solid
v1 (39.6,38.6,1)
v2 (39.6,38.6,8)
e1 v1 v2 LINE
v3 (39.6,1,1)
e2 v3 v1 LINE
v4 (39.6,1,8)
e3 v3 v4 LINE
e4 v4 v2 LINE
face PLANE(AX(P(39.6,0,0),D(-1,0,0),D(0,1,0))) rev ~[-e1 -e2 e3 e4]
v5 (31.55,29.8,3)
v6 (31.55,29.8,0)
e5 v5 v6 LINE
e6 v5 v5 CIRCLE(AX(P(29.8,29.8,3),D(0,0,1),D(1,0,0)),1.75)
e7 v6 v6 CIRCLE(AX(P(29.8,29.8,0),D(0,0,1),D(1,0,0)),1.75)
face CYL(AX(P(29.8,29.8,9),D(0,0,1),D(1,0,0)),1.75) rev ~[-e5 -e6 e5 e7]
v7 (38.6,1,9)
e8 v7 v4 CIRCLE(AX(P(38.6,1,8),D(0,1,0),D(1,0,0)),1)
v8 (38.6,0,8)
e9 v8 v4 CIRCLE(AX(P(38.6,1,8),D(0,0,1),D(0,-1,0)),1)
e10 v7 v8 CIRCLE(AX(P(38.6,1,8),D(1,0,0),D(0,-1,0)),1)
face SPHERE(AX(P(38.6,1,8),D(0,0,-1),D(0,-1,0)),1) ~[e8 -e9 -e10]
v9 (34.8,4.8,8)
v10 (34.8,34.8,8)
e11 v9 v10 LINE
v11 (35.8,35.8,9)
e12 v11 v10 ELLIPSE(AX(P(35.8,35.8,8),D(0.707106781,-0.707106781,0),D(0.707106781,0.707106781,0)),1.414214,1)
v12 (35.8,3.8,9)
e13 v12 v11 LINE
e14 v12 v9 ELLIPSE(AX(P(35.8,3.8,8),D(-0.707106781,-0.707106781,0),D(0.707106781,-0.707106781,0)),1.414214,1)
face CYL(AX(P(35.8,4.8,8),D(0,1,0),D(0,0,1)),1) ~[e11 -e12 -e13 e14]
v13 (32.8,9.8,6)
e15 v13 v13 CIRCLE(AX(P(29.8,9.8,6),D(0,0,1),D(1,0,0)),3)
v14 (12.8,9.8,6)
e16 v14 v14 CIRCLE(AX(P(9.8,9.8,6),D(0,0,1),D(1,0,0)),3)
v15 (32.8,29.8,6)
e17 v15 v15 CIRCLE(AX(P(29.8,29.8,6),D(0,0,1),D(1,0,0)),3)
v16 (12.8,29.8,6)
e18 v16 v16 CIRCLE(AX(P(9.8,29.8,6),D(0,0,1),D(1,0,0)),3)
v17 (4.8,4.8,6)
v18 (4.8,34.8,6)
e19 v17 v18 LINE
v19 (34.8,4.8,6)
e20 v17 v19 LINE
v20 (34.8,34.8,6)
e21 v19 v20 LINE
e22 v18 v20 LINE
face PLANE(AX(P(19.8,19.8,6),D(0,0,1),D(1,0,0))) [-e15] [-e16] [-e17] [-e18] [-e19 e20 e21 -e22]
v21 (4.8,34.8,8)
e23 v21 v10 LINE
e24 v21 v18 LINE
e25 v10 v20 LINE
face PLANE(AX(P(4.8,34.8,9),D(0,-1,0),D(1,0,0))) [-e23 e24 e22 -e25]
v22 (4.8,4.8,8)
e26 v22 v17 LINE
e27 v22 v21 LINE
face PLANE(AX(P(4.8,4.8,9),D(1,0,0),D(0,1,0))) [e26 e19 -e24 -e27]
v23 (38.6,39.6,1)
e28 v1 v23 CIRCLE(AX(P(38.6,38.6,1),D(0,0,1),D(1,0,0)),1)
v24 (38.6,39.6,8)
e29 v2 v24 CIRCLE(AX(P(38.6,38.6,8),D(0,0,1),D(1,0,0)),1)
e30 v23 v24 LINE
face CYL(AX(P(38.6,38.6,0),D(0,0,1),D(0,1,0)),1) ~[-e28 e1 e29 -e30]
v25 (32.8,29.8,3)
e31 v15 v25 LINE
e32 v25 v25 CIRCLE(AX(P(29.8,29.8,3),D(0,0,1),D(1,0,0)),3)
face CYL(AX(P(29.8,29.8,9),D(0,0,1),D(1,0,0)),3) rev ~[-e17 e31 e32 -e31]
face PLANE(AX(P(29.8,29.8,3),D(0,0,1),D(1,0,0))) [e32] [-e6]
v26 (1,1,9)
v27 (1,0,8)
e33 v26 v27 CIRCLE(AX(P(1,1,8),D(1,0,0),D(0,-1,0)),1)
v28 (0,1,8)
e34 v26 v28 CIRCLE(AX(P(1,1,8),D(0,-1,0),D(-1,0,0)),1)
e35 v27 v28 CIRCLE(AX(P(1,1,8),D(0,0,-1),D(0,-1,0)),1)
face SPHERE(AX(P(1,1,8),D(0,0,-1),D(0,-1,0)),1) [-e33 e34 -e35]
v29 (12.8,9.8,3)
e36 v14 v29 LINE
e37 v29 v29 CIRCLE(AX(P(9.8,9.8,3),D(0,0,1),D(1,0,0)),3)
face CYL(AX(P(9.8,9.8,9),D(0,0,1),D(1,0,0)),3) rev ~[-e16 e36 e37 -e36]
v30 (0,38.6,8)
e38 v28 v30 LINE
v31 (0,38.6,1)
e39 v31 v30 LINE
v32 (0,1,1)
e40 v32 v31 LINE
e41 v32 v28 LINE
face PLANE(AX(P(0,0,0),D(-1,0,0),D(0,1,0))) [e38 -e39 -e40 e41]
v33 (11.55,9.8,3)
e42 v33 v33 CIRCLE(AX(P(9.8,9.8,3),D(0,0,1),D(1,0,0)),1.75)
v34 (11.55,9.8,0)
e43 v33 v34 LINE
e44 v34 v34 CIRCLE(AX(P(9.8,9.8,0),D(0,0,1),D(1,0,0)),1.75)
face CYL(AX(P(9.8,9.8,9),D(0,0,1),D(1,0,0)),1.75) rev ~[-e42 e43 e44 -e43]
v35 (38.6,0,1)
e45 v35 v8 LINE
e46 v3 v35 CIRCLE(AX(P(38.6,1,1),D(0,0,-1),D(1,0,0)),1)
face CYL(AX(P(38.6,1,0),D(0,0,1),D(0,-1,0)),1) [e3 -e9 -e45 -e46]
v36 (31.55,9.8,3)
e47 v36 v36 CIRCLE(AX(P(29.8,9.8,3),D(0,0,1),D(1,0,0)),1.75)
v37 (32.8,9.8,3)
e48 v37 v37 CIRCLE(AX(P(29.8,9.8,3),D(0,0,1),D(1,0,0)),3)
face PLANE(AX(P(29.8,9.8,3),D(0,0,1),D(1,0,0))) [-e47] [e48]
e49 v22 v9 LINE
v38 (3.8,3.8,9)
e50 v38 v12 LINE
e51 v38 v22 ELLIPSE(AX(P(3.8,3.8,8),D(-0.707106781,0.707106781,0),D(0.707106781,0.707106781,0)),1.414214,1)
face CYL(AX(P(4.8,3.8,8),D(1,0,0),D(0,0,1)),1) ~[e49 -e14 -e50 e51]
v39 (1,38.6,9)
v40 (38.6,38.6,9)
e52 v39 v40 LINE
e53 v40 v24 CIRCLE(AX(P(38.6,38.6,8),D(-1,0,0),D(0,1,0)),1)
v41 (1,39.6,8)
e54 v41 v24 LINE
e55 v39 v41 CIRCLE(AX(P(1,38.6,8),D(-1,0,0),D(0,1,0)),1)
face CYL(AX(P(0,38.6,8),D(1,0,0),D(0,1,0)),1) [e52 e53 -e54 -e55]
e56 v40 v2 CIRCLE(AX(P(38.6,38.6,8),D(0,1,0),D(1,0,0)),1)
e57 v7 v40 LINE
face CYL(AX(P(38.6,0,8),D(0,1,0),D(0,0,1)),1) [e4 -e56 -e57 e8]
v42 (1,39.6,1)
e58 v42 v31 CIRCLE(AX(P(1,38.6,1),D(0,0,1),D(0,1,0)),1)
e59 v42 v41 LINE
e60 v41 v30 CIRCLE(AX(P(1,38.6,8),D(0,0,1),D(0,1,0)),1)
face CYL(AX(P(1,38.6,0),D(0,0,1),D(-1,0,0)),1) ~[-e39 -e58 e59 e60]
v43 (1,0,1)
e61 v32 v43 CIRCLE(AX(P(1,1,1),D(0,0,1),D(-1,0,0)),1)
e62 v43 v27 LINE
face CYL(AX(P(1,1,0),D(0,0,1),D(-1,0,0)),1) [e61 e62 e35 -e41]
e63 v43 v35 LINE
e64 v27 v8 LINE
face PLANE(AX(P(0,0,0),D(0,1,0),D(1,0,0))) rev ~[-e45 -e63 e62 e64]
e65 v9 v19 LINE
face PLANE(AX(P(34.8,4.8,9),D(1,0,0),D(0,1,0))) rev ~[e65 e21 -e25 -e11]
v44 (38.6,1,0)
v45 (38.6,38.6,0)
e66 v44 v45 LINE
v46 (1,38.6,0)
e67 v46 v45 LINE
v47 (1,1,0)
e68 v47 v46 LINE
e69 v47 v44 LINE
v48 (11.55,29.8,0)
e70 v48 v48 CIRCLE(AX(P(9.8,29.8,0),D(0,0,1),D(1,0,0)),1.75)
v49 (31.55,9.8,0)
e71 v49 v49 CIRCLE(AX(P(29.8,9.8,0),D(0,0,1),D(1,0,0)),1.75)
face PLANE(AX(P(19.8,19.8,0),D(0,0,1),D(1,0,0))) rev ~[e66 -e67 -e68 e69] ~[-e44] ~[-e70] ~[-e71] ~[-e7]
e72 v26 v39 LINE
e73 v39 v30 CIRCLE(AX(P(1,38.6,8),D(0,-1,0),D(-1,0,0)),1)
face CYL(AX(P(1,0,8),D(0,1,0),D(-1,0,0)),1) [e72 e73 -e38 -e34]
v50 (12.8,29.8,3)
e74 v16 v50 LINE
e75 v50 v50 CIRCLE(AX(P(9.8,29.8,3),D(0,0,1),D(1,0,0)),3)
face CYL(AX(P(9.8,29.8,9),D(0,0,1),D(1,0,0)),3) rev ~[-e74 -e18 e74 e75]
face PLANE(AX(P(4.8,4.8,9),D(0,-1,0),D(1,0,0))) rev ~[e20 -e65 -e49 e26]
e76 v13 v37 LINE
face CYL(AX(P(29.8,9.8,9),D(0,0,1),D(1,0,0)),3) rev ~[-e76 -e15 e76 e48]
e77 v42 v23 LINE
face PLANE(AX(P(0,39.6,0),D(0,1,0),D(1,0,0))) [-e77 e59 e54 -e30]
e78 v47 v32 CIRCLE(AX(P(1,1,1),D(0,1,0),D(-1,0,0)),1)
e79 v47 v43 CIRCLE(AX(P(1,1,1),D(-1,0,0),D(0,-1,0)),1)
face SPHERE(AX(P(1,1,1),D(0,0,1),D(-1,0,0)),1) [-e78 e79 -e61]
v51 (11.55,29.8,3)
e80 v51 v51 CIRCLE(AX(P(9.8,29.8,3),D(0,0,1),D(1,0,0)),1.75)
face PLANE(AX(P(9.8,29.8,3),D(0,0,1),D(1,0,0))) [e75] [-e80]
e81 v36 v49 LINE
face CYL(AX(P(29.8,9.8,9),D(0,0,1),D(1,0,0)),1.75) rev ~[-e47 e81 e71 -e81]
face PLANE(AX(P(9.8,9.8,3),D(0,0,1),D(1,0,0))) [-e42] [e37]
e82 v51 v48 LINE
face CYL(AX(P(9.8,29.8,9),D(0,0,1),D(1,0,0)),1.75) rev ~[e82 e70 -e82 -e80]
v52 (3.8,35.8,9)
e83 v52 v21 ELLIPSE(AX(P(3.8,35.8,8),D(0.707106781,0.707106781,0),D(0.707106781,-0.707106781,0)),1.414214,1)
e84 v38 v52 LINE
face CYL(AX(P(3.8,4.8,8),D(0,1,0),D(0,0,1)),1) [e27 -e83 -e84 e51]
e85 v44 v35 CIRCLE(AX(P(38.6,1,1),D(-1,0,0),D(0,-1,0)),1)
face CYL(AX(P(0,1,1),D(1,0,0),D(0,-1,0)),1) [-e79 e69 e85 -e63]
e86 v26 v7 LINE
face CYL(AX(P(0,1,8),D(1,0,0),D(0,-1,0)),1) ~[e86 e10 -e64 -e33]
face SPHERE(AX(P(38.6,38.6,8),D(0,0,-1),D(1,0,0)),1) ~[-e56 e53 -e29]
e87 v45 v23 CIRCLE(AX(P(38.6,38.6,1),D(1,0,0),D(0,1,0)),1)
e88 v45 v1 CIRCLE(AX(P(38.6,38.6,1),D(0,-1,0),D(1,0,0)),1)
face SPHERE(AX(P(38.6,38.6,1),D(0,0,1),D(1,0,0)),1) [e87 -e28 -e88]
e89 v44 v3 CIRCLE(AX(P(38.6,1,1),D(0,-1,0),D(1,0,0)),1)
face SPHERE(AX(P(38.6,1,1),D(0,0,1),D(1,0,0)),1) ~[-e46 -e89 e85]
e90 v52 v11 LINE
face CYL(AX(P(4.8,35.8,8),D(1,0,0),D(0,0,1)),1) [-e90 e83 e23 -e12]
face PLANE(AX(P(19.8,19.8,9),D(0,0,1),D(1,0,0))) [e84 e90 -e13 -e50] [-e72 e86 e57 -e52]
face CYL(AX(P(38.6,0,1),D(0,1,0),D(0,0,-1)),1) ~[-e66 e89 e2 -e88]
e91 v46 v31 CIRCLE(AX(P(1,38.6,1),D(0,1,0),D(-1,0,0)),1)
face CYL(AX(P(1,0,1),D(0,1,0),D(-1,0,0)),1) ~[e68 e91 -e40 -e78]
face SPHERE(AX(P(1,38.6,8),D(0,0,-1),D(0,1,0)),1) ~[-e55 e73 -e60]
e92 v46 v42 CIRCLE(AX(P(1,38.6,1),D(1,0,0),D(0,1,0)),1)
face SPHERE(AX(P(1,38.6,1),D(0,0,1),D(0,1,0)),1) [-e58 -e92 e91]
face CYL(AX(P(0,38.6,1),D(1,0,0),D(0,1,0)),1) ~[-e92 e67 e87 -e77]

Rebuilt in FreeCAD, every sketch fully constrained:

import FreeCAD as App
import Part
import Sketcher

V = App.Vector


def edges_at(feature, points):
    """Names of the edges that pass closest to the given points."""
    edges = feature.Shape.Edges
    near = lambda p: min(range(len(edges)), key=lambda i: edges[i].distToShape(Part.Vertex(*p))[0])
    return sorted({f"Edge{near(p) + 1}" for p in points})


def add_polygon(sketch, points):
    """Adds a closed chain of lines whose ends are joined by coincident constraints."""
    first, n = sketch.GeometryCount, len(points)
    for a, b in zip(points, points[1:] + points[:1]):
        sketch.addGeometry(Part.LineSegment(App.Vector(*a, 0), App.Vector(*b, 0)), False)
    for i in range(n):
        sketch.addConstraint(Sketcher.Constraint("Coincident", first + i, 2, first + (i + 1) % n, 1))

doc = App.newDocument("Part")
body = doc.addObject("PartDesign::Body", "Body")

sketch1 = doc.addObject("Sketcher::SketchObject", "Sketch")
body.addObject(sketch1)
sketch1.AttachmentSupport = (doc.XY_Plane, [""])
sketch1.MapMode = "FlatFace"
add_polygon(sketch1, [(0, 39.6), (0, 0), (39.6, 0), (39.6, 39.6)])
sketch1.addConstraint(Sketcher.Constraint("Vertical", 0))
sketch1.addConstraint(Sketcher.Constraint("Horizontal", 1))
sketch1.addConstraint(Sketcher.Constraint("Vertical", 2))
sketch1.addConstraint(Sketcher.Constraint("Horizontal", 3))
sketch1.addConstraint(Sketcher.Constraint("Coincident", 0, 2, -1, 1))
sketch1.addConstraint(Sketcher.Constraint("Equal", 3, 0))
sketch1.addConstraint(Sketcher.Constraint("DistanceX", 1, 1, 1, 2, 39.6))
pad1 = doc.addObject("PartDesign::Pad", "Pad")
body.addObject(pad1)
pad1.Profile = sketch1
pad1.Length = 9

sketch2 = doc.addObject("Sketcher::SketchObject", "Sketch001")
body.addObject(sketch2)
sketch2.AttachmentSupport = (doc.XY_Plane, [""])
sketch2.MapMode = "FlatFace"
sketch2.AttachmentOffset = App.Placement(V(0, 0, 9), App.Rotation())
sketch2.addGeometry(Part.Circle(V(9.8, 9.8, 0), V(0, 0, 1), 1.75), False)
sketch2.addGeometry(Part.Circle(V(9.8, 29.8, 0), V(0, 0, 1), 1.75), False)
sketch2.addGeometry(Part.Circle(V(29.8, 9.8, 0), V(0, 0, 1), 1.75), False)
sketch2.addGeometry(Part.Circle(V(29.8, 29.8, 0), V(0, 0, 1), 1.75), False)
sketch2.addConstraint(Sketcher.Constraint("Equal", 0, 1))
sketch2.addConstraint(Sketcher.Constraint("Equal", 1, 2))
sketch2.addConstraint(Sketcher.Constraint("Equal", 2, 3))
sketch2.addConstraint(Sketcher.Constraint("Horizontal", 0, 3, 2, 3))
sketch2.addConstraint(Sketcher.Constraint("Horizontal", 1, 3, 3, 3))
sketch2.addConstraint(Sketcher.Constraint("Vertical", 0, 3, 1, 3))
sketch2.addConstraint(Sketcher.Constraint("Vertical", 2, 3, 3, 3))
sketch2.addConstraint(Sketcher.Constraint("Diameter", 0, 3.5))
sketch2.addConstraint(Sketcher.Constraint("DistanceY", 0, 3, 1, 3, 20.0))
sketch2.addConstraint(Sketcher.Constraint("DistanceX", 0, 3, 2, 3, 20.0))
sketch2.addConstraint(Sketcher.Constraint("DistanceX", -1, 1, 0, 3, 9.8))
sketch2.addConstraint(Sketcher.Constraint("DistanceY", -1, 1, 0, 3, 9.8))
pocket1 = doc.addObject("PartDesign::Pocket", "Pocket")
body.addObject(pocket1)
pocket1.Profile = sketch2
pocket1.Length = 10

sketch3 = doc.addObject("Sketcher::SketchObject", "Sketch002")
body.addObject(sketch3)
sketch3.AttachmentSupport = (doc.XY_Plane, [""])
sketch3.MapMode = "FlatFace"
sketch3.AttachmentOffset = App.Placement(V(0, 0, 9), App.Rotation())
sketch3.addGeometry(Part.Circle(V(9.8, 9.8, 0), V(0, 0, 1), 3), False)
sketch3.addGeometry(Part.Circle(V(9.8, 29.8, 0), V(0, 0, 1), 3), False)
sketch3.addGeometry(Part.Circle(V(29.8, 9.8, 0), V(0, 0, 1), 3), False)
sketch3.addGeometry(Part.Circle(V(29.8, 29.8, 0), V(0, 0, 1), 3), False)
sketch3.addConstraint(Sketcher.Constraint("Equal", 0, 1))
sketch3.addConstraint(Sketcher.Constraint("Equal", 1, 2))
sketch3.addConstraint(Sketcher.Constraint("Equal", 2, 3))
sketch3.addConstraint(Sketcher.Constraint("Horizontal", 0, 3, 2, 3))
sketch3.addConstraint(Sketcher.Constraint("Horizontal", 1, 3, 3, 3))
sketch3.addConstraint(Sketcher.Constraint("Vertical", 0, 3, 1, 3))
sketch3.addConstraint(Sketcher.Constraint("Vertical", 2, 3, 3, 3))
sketch3.addConstraint(Sketcher.Constraint("Diameter", 0, 6.0))
sketch3.addConstraint(Sketcher.Constraint("DistanceY", 0, 3, 1, 3, 20.0))
sketch3.addConstraint(Sketcher.Constraint("DistanceX", 0, 3, 2, 3, 20.0))
sketch3.addConstraint(Sketcher.Constraint("DistanceX", -1, 1, 0, 3, 9.8))
sketch3.addConstraint(Sketcher.Constraint("DistanceY", -1, 1, 0, 3, 9.8))
pocket2 = doc.addObject("PartDesign::Pocket", "Pocket001")
body.addObject(pocket2)
pocket2.Profile = sketch3
pocket2.Length = 6

sketch4 = doc.addObject("Sketcher::SketchObject", "Sketch003")
body.addObject(sketch4)
sketch4.AttachmentSupport = (doc.XY_Plane, [""])
sketch4.MapMode = "FlatFace"
sketch4.AttachmentOffset = App.Placement(V(0, 0, 9), App.Rotation())
add_polygon(sketch4, [(4.8, 34.8), (4.8, 4.8), (34.8, 4.8), (34.8, 34.8)])
sketch4.addConstraint(Sketcher.Constraint("Vertical", 0))
sketch4.addConstraint(Sketcher.Constraint("Horizontal", 1))
sketch4.addConstraint(Sketcher.Constraint("Vertical", 2))
sketch4.addConstraint(Sketcher.Constraint("Horizontal", 3))
sketch4.addConstraint(Sketcher.Constraint("Equal", 3, 0))
sketch4.addConstraint(Sketcher.Constraint("DistanceX", 1, 1, 1, 2, 30.0))
sketch4.addConstraint(Sketcher.Constraint("DistanceX", -1, 1, 0, 2, 4.8))
sketch4.addConstraint(Sketcher.Constraint("DistanceY", -1, 1, 0, 2, 4.8))
pocket3 = doc.addObject("PartDesign::Pocket", "Pocket002")
body.addObject(pocket3)
pocket3.Profile = sketch4
pocket3.Length = 3
doc.recompute()

fillet = doc.addObject("PartDesign::Fillet", "Fillet")
body.addObject(fillet)
fillet.Base = (pocket3, edges_at(pocket3, [
    (0, 39.6, 4.5),
    (0, 0, 4.5),
    (39.6, 39.6, 4.5),
    (39.6, 0, 4.5),
    (39.6, 19.8, 0),
    (19.8, 39.6, 0),
    (0, 19.8, 0),
    (19.8, 0, 0),
    (19.8, 0, 9),
    (39.6, 19.8, 9),
    (19.8, 39.6, 9),
    (0, 19.8, 9),
    (19.8, 4.8, 9),
    (34.8, 19.8, 9),
    (19.8, 34.8, 9),
    (4.8, 19.8, 9),
]))
fillet.Radius = 1

doc.recompute()
